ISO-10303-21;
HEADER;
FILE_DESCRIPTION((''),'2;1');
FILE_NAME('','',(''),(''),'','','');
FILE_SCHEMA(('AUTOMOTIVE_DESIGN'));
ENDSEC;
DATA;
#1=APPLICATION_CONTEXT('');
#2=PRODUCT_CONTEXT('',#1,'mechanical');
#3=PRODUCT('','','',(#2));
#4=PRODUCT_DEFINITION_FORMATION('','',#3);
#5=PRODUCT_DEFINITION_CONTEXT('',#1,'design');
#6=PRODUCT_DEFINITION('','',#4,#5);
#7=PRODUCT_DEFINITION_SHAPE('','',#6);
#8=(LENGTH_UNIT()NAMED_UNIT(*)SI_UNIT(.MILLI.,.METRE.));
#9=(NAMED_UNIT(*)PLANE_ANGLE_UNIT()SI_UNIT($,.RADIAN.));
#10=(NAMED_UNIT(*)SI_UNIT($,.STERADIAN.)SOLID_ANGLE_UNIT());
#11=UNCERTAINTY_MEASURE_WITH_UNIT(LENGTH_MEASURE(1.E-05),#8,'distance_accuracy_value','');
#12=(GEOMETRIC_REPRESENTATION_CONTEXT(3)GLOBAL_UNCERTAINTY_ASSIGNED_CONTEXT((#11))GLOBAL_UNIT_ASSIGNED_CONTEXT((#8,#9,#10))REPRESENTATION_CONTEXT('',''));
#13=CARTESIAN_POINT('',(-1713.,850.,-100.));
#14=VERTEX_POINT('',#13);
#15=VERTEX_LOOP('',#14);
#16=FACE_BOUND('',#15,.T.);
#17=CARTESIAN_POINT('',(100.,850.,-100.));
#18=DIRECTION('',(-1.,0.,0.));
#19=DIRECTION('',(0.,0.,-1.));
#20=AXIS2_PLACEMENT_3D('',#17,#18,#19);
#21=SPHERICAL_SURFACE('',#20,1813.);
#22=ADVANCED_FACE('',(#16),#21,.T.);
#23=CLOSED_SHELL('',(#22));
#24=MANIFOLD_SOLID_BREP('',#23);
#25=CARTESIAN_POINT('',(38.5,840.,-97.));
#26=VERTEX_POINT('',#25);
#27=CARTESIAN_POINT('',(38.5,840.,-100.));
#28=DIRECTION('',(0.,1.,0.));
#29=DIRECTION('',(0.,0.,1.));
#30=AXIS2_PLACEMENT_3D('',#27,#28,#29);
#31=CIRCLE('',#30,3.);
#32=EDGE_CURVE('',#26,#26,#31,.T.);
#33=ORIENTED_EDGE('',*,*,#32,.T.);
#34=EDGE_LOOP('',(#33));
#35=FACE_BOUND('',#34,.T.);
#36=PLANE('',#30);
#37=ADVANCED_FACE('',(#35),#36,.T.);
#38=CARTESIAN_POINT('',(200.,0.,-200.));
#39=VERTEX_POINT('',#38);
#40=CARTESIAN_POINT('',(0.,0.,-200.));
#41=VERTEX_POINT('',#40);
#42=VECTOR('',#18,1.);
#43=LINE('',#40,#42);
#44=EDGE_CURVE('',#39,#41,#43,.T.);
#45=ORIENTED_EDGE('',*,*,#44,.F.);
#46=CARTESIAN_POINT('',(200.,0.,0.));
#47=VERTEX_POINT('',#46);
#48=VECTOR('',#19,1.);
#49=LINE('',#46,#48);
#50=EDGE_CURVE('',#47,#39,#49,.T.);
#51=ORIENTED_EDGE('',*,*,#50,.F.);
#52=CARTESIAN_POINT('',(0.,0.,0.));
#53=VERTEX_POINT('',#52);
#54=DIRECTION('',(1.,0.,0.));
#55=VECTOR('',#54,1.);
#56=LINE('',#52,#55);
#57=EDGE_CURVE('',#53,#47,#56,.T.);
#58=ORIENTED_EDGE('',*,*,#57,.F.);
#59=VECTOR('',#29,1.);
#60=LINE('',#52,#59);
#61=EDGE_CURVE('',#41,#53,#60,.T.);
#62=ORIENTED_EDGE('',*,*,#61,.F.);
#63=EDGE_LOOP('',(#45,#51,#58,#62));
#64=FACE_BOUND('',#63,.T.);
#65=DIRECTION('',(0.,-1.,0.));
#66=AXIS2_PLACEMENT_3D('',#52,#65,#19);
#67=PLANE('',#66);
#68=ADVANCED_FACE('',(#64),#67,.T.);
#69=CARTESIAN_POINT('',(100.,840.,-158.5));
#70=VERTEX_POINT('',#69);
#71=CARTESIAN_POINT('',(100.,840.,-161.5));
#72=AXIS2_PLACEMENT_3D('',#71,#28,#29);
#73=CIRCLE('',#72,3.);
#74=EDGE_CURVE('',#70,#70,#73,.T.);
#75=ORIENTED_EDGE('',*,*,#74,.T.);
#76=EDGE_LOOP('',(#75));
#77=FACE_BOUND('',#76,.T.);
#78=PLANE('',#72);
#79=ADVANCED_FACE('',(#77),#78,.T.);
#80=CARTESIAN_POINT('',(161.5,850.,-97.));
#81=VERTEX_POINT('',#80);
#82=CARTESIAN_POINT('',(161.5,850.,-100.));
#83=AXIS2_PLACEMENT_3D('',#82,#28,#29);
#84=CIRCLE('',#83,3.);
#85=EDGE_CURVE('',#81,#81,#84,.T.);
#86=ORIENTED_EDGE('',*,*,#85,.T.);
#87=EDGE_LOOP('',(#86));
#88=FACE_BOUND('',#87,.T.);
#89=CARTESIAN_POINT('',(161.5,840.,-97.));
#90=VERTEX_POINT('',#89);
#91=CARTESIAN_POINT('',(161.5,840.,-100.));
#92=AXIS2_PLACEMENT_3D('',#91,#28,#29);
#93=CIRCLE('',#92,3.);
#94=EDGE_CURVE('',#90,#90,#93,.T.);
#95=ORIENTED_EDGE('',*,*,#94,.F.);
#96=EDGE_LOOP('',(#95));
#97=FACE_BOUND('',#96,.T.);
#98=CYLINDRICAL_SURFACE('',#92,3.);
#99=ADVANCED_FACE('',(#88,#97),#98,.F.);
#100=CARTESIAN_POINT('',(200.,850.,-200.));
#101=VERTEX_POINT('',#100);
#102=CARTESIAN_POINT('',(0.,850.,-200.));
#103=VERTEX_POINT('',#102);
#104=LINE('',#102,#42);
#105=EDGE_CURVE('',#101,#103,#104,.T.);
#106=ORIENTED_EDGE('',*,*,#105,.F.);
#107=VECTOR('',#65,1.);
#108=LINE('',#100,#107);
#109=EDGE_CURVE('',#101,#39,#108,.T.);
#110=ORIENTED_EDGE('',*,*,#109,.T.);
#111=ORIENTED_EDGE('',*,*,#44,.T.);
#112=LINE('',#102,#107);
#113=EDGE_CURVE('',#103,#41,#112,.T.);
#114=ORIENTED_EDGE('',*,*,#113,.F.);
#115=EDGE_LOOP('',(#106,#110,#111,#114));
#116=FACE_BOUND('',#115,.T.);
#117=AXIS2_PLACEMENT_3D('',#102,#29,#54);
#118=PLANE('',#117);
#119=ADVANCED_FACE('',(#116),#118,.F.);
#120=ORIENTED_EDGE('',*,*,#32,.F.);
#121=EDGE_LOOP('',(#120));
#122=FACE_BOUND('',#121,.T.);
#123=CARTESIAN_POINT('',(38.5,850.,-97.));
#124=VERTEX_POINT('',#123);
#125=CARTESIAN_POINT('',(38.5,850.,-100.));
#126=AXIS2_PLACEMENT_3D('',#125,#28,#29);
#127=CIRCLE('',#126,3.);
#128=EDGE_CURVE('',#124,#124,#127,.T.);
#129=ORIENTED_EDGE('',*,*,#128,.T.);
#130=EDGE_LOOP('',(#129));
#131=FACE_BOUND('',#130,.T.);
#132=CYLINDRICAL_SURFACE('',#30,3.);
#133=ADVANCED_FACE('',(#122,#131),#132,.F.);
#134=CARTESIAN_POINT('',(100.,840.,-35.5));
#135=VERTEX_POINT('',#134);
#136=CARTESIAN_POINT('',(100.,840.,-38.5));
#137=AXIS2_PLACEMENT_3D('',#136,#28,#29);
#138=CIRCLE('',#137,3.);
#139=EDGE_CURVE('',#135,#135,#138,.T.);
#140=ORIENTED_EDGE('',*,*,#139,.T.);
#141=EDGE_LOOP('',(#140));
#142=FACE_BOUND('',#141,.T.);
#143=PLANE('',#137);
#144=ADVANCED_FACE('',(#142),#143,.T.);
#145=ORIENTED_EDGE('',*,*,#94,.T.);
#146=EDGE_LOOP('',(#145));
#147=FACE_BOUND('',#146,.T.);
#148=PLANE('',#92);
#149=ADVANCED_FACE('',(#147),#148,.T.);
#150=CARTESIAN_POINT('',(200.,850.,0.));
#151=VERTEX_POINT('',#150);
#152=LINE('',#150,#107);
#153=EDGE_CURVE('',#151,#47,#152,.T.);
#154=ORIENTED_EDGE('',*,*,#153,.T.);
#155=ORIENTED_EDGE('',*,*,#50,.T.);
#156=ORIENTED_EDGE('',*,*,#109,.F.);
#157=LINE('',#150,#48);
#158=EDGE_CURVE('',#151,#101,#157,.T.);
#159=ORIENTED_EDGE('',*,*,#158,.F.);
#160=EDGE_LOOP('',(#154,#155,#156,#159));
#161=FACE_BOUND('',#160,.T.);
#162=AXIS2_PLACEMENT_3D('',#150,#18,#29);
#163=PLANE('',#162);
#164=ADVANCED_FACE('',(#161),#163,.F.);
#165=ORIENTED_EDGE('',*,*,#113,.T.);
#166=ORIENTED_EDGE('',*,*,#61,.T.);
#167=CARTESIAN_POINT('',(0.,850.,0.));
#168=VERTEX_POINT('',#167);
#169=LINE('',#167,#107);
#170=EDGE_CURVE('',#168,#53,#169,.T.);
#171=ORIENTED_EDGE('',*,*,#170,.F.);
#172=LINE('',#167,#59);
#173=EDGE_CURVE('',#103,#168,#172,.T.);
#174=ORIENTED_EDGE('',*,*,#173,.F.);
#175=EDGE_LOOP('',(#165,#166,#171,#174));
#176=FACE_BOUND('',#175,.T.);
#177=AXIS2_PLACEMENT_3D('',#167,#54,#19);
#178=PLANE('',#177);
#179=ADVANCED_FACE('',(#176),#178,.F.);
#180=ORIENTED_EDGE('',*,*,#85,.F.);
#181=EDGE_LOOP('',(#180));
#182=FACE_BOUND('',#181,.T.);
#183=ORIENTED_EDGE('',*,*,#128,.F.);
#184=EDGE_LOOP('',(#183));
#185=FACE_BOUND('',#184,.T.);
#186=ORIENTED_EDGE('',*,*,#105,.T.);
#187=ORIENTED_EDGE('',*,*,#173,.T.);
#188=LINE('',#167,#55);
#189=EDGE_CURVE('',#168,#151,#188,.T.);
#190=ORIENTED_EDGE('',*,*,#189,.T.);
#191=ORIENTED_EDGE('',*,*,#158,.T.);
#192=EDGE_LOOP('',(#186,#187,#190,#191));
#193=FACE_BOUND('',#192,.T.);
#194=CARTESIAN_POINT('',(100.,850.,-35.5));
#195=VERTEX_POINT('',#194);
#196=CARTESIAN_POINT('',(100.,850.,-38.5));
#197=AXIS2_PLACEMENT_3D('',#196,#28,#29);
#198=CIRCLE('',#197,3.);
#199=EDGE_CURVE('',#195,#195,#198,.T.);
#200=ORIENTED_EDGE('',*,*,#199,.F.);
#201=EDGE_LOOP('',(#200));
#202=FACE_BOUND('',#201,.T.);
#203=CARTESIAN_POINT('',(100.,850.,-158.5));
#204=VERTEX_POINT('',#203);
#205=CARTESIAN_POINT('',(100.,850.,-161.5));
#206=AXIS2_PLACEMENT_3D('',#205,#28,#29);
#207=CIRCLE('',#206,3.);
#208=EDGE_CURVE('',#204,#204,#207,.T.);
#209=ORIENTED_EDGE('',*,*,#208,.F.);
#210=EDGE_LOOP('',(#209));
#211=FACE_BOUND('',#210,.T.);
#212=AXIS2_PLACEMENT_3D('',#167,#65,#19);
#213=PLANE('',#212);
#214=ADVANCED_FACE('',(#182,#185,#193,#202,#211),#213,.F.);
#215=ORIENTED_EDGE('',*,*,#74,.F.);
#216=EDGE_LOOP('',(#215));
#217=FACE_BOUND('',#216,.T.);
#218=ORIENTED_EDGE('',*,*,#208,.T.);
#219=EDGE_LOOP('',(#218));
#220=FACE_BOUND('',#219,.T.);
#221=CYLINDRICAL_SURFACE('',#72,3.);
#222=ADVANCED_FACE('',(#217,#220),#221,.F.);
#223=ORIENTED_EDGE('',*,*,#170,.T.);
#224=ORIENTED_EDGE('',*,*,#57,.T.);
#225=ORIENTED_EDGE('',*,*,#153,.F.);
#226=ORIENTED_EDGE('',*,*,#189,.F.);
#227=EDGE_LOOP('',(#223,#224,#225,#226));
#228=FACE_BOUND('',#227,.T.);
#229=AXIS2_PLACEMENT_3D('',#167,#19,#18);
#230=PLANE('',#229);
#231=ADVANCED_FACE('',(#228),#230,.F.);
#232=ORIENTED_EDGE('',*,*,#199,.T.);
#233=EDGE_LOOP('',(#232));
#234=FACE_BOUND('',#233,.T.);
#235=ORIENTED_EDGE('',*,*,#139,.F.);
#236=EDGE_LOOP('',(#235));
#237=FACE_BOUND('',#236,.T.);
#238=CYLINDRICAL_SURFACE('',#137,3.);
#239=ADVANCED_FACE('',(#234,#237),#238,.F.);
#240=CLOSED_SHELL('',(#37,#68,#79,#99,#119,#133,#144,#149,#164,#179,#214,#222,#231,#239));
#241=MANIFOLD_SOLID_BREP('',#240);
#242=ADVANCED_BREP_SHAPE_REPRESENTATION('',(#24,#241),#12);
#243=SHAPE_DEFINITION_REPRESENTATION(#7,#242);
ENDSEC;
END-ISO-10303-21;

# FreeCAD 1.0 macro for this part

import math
import FreeCAD as App
import Part
import Sketcher
from FreeCAD import Vector
Q = App.Units.Quantity


def add_polygon(sketch, points):
    """Adds a closed chain of lines whose ends are joined by coincident constraints."""
    first, n = sketch.GeometryCount, len(points)
    for a, b in zip(points, points[1:] + points[:1]):
        sketch.addGeometry(Part.LineSegment(App.Vector(*a, 0), App.Vector(*b, 0)), False)
    for i in range(n):
        sketch.addConstraint(Sketcher.Constraint("Coincident", first + i, 2, first + (i + 1) % n, 1))

doc = App.newDocument("Part")
params = doc.addObject("Spreadsheet::Sheet", "Params")
for row, (alias, value) in enumerate([
    ("sketch1_width", "200 mm"),
    ("pad1_length", "850 mm"),
    ("sketch2_diameter", "6 mm"),
    ("pocket1_length", "10 mm"),
    ("sketch3_radius", "1813 mm"),
    ("revolution_angle", "360 deg"),
], start=1):
    params.set(f"A{row}", alias)
    params.set(f"B{row}", "=" + value)
    params.setAlias(f"B{row}", alias)

body = doc.addObject("PartDesign::Body", "Body")

# Sketch on XZ plane
sketch1 = doc.addObject("Sketcher::SketchObject", "Sketch")
body.addObject(sketch1)
sketch1.AttachmentSupport = (doc.XZ_Plane, [""])
sketch1.MapMode = "FlatFace"
add_polygon(sketch1, [(0, -200), (0, 0), (200, 0), (200, -200)])  # lines 0-3
sketch1.addConstraint(Sketcher.Constraint("Vertical", 0))
sketch1.addConstraint(Sketcher.Constraint("Horizontal", 1))
sketch1.addConstraint(Sketcher.Constraint("Vertical", 2))
sketch1.addConstraint(Sketcher.Constraint("Horizontal", 3))
sketch1.addConstraint(Sketcher.Constraint("Coincident", 0, 2, -1, 1))
sketch1.addConstraint(Sketcher.Constraint("Equal", 3, 0))
sketch1.addConstraint(Sketcher.Constraint("DistanceX", 1, 1, 1, 2, Q("200 mm")))
sketch1.setExpression("Constraints[10]", "Params.sketch1_width")
pad1 = doc.addObject("PartDesign::Pad", "Pad")
body.addObject(pad1)
pad1.Profile = sketch1
pad1.setExpression("Length", "Params.pad1_length")
pad1.Reversed = True

# Sketch on XZ plane
sketch2 = doc.addObject("Sketcher::SketchObject", "Sketch001")
body.addObject(sketch2)
sketch2.AttachmentSupport = (doc.XZ_Plane, [""])
sketch2.MapMode = "FlatFace"
sketch2.AttachmentOffset = App.Placement(Vector(0, 0, -850), App.Rotation())
sketch2.addGeometry(Part.Circle(Vector(100, -161.5, 0), Vector(0, 0, 1), 3), False)
sketch2.addGeometry(Part.Circle(Vector(161.5, -100, 0), Vector(0, 0, 1), 3), False)
sketch2.addGeometry(Part.Circle(Vector(100, -38.5, 0), Vector(0, 0, 1), 3), False)
sketch2.addGeometry(Part.Circle(Vector(38.5, -100, 0), Vector(0, 0, 1), 3), False)
sketch2.addConstraint(Sketcher.Constraint("Equal", 0, 1))
sketch2.addConstraint(Sketcher.Constraint("Equal", 1, 2))
sketch2.addConstraint(Sketcher.Constraint("Equal", 2, 3))
sketch2.addConstraint(Sketcher.Constraint("Horizontal", 1, 3, 3, 3))
sketch2.addConstraint(Sketcher.Constraint("Vertical", 0, 3, 2, 3))
sketch2.addConstraint(Sketcher.Constraint("Diameter", 0, Q("6 mm")))
sketch2.addConstraint(Sketcher.Constraint("DistanceX", -1, 1, 0, 3, Q("100 mm")))
sketch2.addConstraint(Sketcher.Constraint("DistanceY", 1, 3, -1, 1, Q("100 mm")))
sketch2.addConstraint(Sketcher.Constraint("DistanceY", 0, 3, 2, 3, Q("123 mm")))
sketch2.addConstraint(Sketcher.Constraint("DistanceX", 3, 3, 1, 3, Q("123 mm")))
sketch2.addConstraint(Sketcher.Constraint("DistanceY", 0, 3, -1, 1, Q("161.5 mm")))
sketch2.addConstraint(Sketcher.Constraint("DistanceX", -1, 1, 1, 3, Q("161.5 mm")))
sketch2.setExpression("Constraints[5]", "Params.sketch2_diameter")
pocket1 = doc.addObject("PartDesign::Pocket", "Pocket")
body.addObject(pocket1)
pocket1.Profile = sketch2
pocket1.setExpression("Length", "Params.pocket1_length")
pocket1.Reversed = True
body2 = doc.addObject("PartDesign::Body", "Body001")

# Sketch on XZ plane
sketch3 = doc.addObject("Sketcher::SketchObject", "Sketch002")
body2.addObject(sketch3)
sketch3.AttachmentSupport = (doc.getObject("XZ_Plane001"), [""])
sketch3.MapMode = "FlatFace"
sketch3.AttachmentOffset = App.Placement(Vector(0, 0, -850), App.Rotation())
sketch3.addGeometry(Part.LineSegment(Vector(1913, -100, 0), Vector(-1713, -100, 0)), False)
sketch3.addGeometry(Part.ArcOfCircle(Part.Circle(Vector(100, -100, 0), Vector(0, 0, 1), 1813), math.radians(0), math.radians(180)), False)
sketch3.addGeometry(Part.LineSegment(Vector(-1713, -100, 0), Vector(1913, -100, 0)), True)  # axis
sketch3.addConstraint(Sketcher.Constraint("Coincident", 0, 1, 1, 1))
sketch3.addConstraint(Sketcher.Constraint("Coincident", 1, 2, 0, 2))
sketch3.addConstraint(Sketcher.Constraint("Horizontal", 0))
sketch3.addConstraint(Sketcher.Constraint("Horizontal", 2))
sketch3.addConstraint(Sketcher.Constraint("Coincident", 2, 2, 0, 1))
sketch3.addConstraint(Sketcher.Constraint("Horizontal", 1, 3, 0, 1))
sketch3.addConstraint(Sketcher.Constraint("Equal", 0, 2))
sketch3.addConstraint(Sketcher.Constraint("Radius", 1, Q("1813 mm")))
sketch3.addConstraint(Sketcher.Constraint("DistanceX", -1, 1, 1, 3, Q("100 mm")))
sketch3.addConstraint(Sketcher.Constraint("DistanceY", 1, 3, -1, 1, Q("100 mm")))
sketch3.setExpression("Constraints[7]", "Params.sketch3_radius")
revolution = doc.addObject("PartDesign::Revolution", "Revolution")
body2.addObject(revolution)
revolution.Profile = sketch3
revolution.ReferenceAxis = (sketch3, ["Axis0"])
revolution.setExpression("Angle", "Params.revolution_angle")

doc.recompute()
